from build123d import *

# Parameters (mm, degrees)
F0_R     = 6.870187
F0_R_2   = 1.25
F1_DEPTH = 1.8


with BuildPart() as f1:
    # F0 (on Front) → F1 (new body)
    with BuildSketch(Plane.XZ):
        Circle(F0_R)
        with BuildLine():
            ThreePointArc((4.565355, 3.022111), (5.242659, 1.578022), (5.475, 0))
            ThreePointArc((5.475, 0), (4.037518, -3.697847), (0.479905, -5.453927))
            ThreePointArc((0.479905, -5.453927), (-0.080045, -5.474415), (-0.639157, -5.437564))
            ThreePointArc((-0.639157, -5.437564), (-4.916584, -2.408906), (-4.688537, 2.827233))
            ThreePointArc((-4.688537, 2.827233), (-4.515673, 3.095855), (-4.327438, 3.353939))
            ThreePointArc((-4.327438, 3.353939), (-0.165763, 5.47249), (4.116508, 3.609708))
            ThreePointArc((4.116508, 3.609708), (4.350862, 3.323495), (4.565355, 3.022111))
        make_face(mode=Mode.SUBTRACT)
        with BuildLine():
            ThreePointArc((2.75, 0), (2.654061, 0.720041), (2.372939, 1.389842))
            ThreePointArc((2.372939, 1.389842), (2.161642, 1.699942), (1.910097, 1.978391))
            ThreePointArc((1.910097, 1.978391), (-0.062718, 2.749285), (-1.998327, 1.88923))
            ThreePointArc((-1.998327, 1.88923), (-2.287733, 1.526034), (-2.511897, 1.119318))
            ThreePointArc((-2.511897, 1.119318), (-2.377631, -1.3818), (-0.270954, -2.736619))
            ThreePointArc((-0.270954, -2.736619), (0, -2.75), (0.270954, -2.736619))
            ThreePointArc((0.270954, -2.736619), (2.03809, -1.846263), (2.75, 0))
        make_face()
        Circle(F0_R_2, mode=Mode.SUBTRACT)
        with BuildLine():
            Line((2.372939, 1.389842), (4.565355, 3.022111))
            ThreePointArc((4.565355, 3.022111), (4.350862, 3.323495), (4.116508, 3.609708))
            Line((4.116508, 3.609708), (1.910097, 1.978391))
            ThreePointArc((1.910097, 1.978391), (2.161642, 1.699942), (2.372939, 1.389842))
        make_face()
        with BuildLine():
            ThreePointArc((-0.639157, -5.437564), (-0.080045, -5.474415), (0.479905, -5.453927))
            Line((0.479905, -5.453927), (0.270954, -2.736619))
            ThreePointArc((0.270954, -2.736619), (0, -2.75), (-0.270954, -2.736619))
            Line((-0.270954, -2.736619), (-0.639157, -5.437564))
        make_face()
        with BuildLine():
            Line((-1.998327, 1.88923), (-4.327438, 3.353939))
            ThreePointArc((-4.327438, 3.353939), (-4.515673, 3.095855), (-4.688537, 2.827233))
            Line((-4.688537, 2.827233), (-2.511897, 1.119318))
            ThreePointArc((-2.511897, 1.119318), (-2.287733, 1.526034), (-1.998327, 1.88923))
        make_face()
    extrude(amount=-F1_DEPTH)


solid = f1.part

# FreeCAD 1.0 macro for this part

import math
import FreeCAD as App
import Part
import Sketcher

doc = App.newDocument("Part")
params = doc.addObject("Spreadsheet::Sheet", "Params")
for row, (alias, value) in enumerate([
    ("sketch1_diameter", "2.5 mm"),
    ("sketch1_radius", "2.75 mm"),
    ("sketch1_radius2", "2.75 mm"),
    ("sketch1_radius3", "2.750001 mm"),
    ("pad1_length", "1.8 mm"),
], start=1):
    params.set(f"A{row}", alias)
    params.set(f"B{row}", "=" + value)
    params.setAlias(f"B{row}", alias)

body = doc.addObject("PartDesign::Body", "Body")

# Sketch on XZ plane
sketch1 = doc.addObject("Sketcher::SketchObject", "Sketch")
body.addObject(sketch1)
sketch1.AttachmentSupport = (doc.XZ_Plane, [""])
sketch1.MapMode = "FlatFace"
sketch1.addGeometry([
    Part.Circle(App.Vector(0, 0, 0), App.Vector(0, 0, 1), 6.870187),  # 0
    Part.ArcOfCircle(Part.Circle(App.Vector(0, -0.000001, 0), App.Vector(0, 0, 1), 5.475001), math.radians(41.247078), math.radians(142.222865)),  # 1
    Part.LineSegment(App.Vector(4.116508, 3.609708, 0), App.Vector(1.910097, 1.978391, 0)),  # 2
    Part.ArcOfCircle(Part.Circle(App.Vector(0, 0, 0), App.Vector(0, 0, 1), 2.75), math.radians(46.006187), math.radians(136.607482)),  # 3
    Part.LineSegment(App.Vector(-1.998327, 1.88923, 0), App.Vector(-4.327438, 3.353939, 0)),  # 4
    Part.ArcOfCircle(Part.Circle(App.Vector(0, 0, 0), App.Vector(0, 0, 1), 2.75), math.radians(155.981922), math.radians(264.345552)),  # 5
    Part.LineSegment(App.Vector(-0.270954, -2.736619, 0), App.Vector(-0.639157, -5.437564, 0)),  # 6
    Part.ArcOfCircle(Part.Circle(App.Vector(0, 0, 0), App.Vector(0, 0, 1), 5.475), math.radians(148.909616), math.radians(263.295949)),  # 7
    Part.LineSegment(App.Vector(-4.688537, 2.827233, 0), App.Vector(-2.511897, 1.119318, 0)),  # 8
    Part.ArcOfCircle(Part.Circle(App.Vector(-0.000001, 0.000001, 0), App.Vector(0, 0, 1), 2.750001), math.radians(-84.345528), math.radians(-0.000019)),  # 9
    Part.ArcOfCircle(Part.Circle(App.Vector(-0.000007, -0.000002, 0), App.Vector(0, 0, 1), 2.750007), math.radians(0.000035), math.radians(30.357676)),  # 10
    Part.LineSegment(App.Vector(2.372939, 1.389842, 0), App.Vector(4.565355, 3.022111, 0)),  # 11
    Part.ArcOfCircle(Part.Circle(App.Vector(0.000008, 0.000002, 0), App.Vector(0, 0, 1), 5.474992), math.radians(-0.000018), math.radians(33.503246)),  # 12
    Part.ArcOfCircle(Part.Circle(App.Vector(-0.000001, 0, 0), App.Vector(0, 0, 1), 5.475001), math.radians(-84.971341), math.radians(-0.000005)),  # 13
    Part.LineSegment(App.Vector(0.479905, -5.453927, 0), App.Vector(0.270954, -2.736619, 0)),  # 14
    Part.Circle(App.Vector(0, 0, 0), App.Vector(0, 0, 1), 1.25),  # 15
], False)
sketch1.addConstraint([
    Sketcher.Constraint("Coincident", 1, 1, 2, 1),
    Sketcher.Constraint("Coincident", 2, 2, 3, 1),
    Sketcher.Constraint("Coincident", 3, 2, 4, 1),
    Sketcher.Constraint("Coincident", 4, 2, 1, 2),
    Sketcher.Constraint("Coincident", 5, 2, 6, 1),
    Sketcher.Constraint("Coincident", 6, 2, 7, 2),
    Sketcher.Constraint("Coincident", 7, 1, 8, 1),
    Sketcher.Constraint("Coincident", 8, 2, 5, 1),
    Sketcher.Constraint("Coincident", 9, 2, 10, 1),
    Sketcher.Constraint("Coincident", 10, 2, 11, 1),
    Sketcher.Constraint("Coincident", 11, 2, 12, 2),
    Sketcher.Constraint("Coincident", 12, 1, 13, 2),
    Sketcher.Constraint("Coincident", 13, 1, 14, 1),
    Sketcher.Constraint("Coincident", 14, 2, 9, 1),
    Sketcher.Constraint("Coincident", 0, 3, -1, 1),
    Sketcher.Constraint("Coincident", 1, 3, -1, 1),
    Sketcher.Constraint("Coincident", 3, 3, -1, 1),
    Sketcher.Constraint("Coincident", 5, 3, -1, 1),
    Sketcher.Constraint("Coincident", 7, 3, -1, 1),
    Sketcher.Constraint("Coincident", 9, 3, -1, 1),
    Sketcher.Constraint("Coincident", 10, 3, -1, 1),
    Sketcher.Constraint("Coincident", 12, 3, -1, 1),
    Sketcher.Constraint("Coincident", 13, 3, -1, 1),
    Sketcher.Constraint("Coincident", 15, 3, -1, 1),
    Sketcher.Constraint("PointOnObject", 9, 2, -1),
    Sketcher.Constraint("PointOnObject", 12, 1, -1),
    Sketcher.Constraint("Diameter", 15, 2.5),
    Sketcher.Constraint("Radius", 3, 2.75),
    Sketcher.Constraint("Radius", 5, 2.75),
    Sketcher.Constraint("Radius", 9, 2.750001),
    Sketcher.Constraint("Radius", 1, 5.475001),
    Sketcher.Constraint("Radius", 7, 5.475),
    Sketcher.Constraint("Radius", 13, 5.475001),
    Sketcher.Constraint("Diameter", 0, 13.740374),
    Sketcher.Constraint("DistanceX", 12, 3, 1, 1, 4.1165),
    Sketcher.Constraint("DistanceX", 7, 1, 4, 2, 0.361099),
    Sketcher.Constraint("Distance", 8, 2.766719),
    Sketcher.Constraint("Distance", 11, 2.733311),
    Sketcher.Constraint("Distance", 14, 2.72533),
    Sketcher.Constraint("DistanceY", -1, 1, 2, 2, 1.978391),
    Sketcher.Constraint("DistanceY", -1, 1, 3, 2, 1.88923),
    Sketcher.Constraint("DistanceY", -1, 1, 4, 2, 3.353939),
    Sketcher.Constraint("DistanceY", 5, 2, -1, 1, 2.736619),
    Sketcher.Constraint("DistanceX", -1, 1, 10, 2, 2.372939),
    Sketcher.Constraint("DistanceY", 14, 2, -1, 1, 2.736619),
    Sketcher.Constraint("DistanceX", 6, 2, 10, 3, 0.63915),
])
sketch1.setExpression("Constraints[26]", "Params.sketch1_diameter")
sketch1.setExpression("Constraints[27]", "Params.sketch1_radius")
sketch1.setExpression("Constraints[28]", "Params.sketch1_radius2")
sketch1.setExpression("Constraints[29]", "Params.sketch1_radius3")
pad1 = doc.addObject("PartDesign::Pad", "Pad")
body.addObject(pad1)
pad1.Profile = sketch1
pad1.setExpression("Length", "Params.pad1_length")
pad1.Reversed = True

doc.recompute()
